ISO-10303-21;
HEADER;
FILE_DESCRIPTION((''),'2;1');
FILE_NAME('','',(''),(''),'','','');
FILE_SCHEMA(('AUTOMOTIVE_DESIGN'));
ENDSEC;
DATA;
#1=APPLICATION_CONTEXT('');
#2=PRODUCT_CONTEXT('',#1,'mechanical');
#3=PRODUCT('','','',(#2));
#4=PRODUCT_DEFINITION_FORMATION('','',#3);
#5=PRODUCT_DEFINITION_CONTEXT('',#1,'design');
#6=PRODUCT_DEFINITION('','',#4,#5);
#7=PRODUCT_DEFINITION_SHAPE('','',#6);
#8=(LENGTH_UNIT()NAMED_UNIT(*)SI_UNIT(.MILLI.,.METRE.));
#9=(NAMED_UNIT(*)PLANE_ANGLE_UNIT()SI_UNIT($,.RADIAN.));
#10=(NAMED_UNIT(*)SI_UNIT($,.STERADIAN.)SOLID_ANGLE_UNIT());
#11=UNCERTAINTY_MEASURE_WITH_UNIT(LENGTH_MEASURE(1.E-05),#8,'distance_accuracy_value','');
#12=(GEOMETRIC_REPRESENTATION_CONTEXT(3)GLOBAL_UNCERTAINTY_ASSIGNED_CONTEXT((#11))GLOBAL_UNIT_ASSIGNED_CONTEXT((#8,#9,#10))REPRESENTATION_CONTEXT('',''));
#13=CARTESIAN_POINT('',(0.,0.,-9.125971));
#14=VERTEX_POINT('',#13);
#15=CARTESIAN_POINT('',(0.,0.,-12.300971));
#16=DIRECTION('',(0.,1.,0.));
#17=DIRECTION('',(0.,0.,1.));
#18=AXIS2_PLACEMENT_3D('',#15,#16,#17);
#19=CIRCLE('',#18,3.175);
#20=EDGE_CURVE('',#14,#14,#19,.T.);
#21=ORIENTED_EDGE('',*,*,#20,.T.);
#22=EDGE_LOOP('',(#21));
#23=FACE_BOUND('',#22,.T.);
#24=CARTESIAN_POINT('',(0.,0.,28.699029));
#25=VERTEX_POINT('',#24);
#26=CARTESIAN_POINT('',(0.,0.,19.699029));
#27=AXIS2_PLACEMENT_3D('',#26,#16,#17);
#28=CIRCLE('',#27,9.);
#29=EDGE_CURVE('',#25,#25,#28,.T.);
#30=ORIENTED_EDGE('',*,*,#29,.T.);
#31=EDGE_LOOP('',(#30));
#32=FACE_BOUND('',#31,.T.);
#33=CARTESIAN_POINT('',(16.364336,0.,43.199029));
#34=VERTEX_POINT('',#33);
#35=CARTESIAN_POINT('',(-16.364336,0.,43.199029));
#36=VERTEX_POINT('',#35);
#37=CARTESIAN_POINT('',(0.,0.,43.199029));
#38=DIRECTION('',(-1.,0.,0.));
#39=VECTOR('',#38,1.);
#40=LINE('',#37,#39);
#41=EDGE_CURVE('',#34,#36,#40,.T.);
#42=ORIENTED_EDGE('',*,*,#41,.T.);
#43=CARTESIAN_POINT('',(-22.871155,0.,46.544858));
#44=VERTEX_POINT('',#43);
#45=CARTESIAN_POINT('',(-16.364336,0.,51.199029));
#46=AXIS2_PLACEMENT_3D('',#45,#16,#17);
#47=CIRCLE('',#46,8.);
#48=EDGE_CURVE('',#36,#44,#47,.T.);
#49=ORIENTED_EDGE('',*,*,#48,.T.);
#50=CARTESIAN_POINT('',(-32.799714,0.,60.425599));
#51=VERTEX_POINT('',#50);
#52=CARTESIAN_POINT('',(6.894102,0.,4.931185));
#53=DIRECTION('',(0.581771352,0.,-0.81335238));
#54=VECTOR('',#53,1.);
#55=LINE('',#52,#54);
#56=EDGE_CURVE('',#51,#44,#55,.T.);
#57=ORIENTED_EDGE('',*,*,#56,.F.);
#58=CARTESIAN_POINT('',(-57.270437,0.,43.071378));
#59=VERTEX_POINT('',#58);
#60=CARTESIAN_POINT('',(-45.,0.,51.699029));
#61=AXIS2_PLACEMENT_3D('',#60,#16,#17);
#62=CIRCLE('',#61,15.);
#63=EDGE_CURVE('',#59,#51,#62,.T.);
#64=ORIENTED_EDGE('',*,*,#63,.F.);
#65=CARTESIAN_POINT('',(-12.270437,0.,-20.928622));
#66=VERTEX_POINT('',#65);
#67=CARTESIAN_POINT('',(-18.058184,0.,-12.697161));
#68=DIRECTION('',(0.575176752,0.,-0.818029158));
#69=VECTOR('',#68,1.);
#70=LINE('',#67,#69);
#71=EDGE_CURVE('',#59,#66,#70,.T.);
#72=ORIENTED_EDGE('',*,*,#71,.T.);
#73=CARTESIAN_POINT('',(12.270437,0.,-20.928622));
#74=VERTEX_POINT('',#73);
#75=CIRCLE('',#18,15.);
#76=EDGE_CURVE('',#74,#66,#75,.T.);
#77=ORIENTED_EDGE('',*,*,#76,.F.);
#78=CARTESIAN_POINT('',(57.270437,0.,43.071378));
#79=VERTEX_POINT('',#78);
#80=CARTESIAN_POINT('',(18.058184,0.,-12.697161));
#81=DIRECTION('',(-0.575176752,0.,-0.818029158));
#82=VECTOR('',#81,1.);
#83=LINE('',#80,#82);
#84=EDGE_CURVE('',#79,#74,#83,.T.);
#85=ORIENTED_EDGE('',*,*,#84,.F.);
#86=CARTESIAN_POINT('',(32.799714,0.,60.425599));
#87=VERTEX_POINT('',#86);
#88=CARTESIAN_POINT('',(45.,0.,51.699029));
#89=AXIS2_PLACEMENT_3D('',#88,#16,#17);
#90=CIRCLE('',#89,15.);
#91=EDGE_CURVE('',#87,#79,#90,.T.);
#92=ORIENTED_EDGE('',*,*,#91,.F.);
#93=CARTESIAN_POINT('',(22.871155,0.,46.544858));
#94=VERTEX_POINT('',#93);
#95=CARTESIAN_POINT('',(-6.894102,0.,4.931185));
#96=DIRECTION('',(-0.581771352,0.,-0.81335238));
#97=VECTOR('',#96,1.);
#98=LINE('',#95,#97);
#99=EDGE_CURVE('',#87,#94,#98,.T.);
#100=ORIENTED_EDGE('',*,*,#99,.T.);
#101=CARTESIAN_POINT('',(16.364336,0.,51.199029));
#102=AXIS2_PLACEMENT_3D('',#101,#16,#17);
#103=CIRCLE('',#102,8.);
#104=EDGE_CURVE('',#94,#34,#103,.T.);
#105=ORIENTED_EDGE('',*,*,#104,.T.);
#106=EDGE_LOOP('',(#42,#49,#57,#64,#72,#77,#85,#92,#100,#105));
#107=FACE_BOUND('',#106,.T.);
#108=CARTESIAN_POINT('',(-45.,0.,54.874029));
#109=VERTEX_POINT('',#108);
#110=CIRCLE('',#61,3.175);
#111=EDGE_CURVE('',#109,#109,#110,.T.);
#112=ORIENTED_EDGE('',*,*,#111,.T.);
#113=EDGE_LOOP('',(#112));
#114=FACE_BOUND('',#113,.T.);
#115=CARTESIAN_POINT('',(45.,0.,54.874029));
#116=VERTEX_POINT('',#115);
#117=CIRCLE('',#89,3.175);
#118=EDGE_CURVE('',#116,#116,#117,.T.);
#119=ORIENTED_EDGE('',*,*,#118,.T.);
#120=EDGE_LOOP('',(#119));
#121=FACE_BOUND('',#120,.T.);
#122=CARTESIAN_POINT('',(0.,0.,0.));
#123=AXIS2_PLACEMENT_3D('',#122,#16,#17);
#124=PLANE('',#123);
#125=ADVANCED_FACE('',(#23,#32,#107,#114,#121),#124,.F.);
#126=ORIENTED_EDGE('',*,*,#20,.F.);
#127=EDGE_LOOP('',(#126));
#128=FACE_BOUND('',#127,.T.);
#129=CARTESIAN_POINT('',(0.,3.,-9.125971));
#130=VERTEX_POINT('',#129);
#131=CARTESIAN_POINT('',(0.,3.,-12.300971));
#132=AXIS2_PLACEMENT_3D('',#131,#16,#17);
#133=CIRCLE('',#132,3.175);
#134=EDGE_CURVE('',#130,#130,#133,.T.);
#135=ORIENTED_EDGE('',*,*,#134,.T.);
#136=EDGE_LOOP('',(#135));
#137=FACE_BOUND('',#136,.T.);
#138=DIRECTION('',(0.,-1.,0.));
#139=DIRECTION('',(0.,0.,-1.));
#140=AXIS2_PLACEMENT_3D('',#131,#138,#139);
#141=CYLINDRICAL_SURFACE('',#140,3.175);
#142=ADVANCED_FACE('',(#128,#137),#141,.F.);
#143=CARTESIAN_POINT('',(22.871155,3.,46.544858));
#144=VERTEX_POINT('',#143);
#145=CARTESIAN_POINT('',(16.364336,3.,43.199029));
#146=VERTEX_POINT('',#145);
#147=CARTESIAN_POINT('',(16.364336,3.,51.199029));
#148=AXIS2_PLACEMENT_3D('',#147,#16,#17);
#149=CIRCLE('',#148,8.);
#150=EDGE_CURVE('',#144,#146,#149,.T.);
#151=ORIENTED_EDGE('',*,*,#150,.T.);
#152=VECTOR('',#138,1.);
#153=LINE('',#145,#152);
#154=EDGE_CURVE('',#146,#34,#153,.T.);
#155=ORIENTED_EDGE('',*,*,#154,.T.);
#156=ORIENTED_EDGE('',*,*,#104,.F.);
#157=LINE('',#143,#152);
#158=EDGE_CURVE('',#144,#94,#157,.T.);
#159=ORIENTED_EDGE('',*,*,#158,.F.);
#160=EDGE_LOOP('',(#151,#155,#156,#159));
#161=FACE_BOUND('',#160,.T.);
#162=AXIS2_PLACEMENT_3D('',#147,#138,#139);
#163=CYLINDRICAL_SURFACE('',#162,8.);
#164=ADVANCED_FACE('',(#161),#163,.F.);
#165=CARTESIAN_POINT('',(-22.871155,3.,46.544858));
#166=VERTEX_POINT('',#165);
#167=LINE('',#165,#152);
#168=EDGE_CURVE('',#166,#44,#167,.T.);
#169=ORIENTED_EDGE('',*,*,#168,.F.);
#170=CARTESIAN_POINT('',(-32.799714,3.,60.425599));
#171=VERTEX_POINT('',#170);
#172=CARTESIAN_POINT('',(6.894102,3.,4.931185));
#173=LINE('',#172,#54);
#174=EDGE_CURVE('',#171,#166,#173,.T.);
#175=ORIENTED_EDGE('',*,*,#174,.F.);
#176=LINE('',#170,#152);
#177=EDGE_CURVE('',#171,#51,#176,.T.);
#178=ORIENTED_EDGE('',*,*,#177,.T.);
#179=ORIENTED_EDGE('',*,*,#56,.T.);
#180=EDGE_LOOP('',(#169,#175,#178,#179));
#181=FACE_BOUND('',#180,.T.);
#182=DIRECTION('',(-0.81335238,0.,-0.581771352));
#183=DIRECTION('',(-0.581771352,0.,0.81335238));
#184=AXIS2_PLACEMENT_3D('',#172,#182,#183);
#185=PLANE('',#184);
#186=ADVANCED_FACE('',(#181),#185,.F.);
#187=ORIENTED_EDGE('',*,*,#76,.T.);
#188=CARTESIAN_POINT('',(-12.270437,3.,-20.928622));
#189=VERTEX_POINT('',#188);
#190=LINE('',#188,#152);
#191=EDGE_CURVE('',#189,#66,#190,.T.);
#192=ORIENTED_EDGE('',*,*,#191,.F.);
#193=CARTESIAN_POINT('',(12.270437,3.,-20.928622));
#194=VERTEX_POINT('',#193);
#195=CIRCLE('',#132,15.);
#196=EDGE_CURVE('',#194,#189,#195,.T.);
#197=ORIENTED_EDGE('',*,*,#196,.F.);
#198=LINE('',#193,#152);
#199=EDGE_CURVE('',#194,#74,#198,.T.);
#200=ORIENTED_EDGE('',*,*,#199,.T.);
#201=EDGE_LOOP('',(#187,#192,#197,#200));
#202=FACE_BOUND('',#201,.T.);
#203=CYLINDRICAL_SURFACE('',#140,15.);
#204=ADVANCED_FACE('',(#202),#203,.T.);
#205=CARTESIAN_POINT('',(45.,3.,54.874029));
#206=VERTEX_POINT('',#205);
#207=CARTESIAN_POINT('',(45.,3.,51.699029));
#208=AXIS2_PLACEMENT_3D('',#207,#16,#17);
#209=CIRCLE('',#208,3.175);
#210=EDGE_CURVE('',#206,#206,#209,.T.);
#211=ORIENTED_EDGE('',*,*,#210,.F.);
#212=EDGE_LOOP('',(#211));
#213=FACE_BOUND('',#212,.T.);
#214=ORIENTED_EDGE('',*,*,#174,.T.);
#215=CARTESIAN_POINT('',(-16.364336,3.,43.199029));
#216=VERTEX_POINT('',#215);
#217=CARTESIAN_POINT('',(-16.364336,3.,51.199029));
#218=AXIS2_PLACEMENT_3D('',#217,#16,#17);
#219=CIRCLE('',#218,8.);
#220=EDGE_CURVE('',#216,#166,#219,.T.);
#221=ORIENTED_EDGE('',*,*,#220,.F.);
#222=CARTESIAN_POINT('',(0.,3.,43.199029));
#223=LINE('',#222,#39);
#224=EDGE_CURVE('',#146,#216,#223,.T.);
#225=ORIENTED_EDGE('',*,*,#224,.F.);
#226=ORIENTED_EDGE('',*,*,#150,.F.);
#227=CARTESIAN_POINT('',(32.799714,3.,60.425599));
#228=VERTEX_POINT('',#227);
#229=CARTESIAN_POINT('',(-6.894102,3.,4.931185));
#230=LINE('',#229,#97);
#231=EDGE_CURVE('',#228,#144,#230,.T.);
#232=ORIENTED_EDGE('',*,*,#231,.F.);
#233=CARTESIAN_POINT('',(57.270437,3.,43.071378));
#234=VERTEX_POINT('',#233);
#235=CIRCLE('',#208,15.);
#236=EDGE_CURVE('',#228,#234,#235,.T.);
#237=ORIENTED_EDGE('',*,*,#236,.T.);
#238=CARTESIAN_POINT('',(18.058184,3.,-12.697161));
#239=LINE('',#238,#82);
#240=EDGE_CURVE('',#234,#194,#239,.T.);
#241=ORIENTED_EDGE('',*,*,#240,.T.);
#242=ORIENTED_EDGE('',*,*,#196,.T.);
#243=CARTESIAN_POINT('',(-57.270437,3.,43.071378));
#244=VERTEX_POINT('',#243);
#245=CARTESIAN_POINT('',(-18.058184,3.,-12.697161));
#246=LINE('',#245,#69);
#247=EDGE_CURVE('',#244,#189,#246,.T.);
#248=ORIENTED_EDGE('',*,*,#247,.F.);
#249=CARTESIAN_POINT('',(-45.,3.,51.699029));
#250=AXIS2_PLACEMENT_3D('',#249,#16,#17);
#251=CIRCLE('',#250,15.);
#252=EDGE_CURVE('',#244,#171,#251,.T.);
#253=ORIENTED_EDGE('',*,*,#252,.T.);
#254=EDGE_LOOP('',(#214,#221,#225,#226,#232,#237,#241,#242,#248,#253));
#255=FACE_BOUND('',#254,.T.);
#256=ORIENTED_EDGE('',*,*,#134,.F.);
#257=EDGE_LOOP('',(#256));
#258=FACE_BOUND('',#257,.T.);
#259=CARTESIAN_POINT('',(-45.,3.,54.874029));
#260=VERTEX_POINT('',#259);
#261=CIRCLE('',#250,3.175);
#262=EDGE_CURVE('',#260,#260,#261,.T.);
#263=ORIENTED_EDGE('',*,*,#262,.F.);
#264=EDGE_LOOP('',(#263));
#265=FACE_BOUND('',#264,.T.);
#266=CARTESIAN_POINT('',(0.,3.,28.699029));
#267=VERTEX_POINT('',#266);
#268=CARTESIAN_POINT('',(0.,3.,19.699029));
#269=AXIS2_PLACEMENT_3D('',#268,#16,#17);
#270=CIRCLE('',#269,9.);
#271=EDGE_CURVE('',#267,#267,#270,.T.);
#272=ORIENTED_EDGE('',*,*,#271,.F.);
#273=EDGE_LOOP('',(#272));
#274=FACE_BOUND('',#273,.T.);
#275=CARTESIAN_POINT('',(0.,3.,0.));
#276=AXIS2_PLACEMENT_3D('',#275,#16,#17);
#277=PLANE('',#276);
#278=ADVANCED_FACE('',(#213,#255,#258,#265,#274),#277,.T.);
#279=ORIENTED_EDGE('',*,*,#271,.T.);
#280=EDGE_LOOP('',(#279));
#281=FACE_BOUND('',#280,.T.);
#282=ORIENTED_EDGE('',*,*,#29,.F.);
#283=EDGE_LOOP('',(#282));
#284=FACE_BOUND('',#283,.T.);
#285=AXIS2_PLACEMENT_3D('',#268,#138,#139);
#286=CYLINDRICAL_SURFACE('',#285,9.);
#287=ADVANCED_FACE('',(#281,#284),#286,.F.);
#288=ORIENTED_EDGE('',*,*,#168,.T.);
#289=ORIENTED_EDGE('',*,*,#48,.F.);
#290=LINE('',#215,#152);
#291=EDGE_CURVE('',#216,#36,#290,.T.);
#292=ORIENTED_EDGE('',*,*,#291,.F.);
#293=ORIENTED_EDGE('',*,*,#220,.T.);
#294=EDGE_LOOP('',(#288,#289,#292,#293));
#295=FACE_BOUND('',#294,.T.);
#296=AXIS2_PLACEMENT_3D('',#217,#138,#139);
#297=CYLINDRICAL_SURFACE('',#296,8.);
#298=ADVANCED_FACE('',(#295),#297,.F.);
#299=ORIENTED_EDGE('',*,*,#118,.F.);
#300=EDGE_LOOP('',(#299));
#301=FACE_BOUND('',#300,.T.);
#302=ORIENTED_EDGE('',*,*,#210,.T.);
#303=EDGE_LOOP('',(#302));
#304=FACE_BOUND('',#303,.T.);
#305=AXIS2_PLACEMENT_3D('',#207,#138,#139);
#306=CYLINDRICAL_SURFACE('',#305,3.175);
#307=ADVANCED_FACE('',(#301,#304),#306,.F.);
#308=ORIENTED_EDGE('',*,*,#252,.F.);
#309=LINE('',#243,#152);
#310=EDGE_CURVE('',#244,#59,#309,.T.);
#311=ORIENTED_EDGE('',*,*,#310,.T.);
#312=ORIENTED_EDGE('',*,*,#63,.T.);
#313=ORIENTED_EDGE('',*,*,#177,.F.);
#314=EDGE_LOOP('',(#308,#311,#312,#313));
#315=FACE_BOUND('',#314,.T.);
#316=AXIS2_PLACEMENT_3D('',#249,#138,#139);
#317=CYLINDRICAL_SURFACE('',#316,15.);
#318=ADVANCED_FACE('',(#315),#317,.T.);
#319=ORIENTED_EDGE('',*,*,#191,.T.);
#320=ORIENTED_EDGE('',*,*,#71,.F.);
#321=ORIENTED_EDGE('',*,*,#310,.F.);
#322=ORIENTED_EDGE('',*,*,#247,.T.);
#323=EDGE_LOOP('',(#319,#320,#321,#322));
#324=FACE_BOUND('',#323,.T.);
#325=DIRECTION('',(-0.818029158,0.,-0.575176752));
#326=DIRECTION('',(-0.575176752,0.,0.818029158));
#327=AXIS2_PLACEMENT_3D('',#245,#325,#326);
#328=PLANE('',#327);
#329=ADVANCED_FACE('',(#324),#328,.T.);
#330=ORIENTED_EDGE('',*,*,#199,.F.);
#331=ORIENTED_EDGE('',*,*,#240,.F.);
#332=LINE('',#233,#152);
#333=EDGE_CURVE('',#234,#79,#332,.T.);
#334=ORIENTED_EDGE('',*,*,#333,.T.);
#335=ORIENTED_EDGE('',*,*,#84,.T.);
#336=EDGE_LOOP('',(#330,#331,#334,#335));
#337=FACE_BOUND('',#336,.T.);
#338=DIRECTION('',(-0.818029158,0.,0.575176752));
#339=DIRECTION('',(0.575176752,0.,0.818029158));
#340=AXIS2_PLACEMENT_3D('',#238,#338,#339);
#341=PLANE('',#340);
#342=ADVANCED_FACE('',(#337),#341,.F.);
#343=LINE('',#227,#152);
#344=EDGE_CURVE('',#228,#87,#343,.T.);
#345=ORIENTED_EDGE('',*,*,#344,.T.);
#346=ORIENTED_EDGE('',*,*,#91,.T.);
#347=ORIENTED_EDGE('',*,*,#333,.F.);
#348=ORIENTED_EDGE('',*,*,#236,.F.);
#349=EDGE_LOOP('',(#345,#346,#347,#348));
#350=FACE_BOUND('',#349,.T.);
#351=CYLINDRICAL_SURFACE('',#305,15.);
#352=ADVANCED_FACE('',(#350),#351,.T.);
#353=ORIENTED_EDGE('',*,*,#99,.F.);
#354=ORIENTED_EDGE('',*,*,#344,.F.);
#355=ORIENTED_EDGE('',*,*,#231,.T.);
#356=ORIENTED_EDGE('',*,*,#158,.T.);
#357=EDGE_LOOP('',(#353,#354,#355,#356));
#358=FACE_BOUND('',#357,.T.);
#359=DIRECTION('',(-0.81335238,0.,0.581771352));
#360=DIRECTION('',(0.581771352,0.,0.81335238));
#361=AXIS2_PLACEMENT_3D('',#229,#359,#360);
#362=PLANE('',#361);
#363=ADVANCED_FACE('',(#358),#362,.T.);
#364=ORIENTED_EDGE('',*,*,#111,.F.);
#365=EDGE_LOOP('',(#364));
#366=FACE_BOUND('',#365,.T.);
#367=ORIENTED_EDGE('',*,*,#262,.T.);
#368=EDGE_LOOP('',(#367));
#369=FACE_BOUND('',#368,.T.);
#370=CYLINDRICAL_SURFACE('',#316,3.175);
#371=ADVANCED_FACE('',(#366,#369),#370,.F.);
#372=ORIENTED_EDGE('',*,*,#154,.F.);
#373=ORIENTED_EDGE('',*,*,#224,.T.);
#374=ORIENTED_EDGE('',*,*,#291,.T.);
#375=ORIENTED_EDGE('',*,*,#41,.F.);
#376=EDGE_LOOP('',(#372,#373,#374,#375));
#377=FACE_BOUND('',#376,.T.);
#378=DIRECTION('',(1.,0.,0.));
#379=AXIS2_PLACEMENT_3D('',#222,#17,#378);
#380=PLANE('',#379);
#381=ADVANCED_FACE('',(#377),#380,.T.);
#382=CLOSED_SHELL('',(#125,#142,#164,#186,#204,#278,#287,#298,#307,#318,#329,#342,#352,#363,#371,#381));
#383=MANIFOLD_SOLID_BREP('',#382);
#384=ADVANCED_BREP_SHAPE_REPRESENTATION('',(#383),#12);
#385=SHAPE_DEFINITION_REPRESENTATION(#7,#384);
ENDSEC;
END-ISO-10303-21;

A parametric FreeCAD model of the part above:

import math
import FreeCAD as App
import Part
import Sketcher
from FreeCAD import Vector

doc = App.newDocument("Part")
body = doc.addObject("PartDesign::Body", "Body")

# Sketch on XZ plane
sketch1 = body.newObject("Sketcher::SketchObject", "Sketch")
sketch1.AttachmentSupport = (doc.getObject("XZ_Plane"), [""])
sketch1.MapMode = "FlatFace"
sketch1.addGeometry(Part.LineSegment(Vector(-12.270437, -20.928622, 0), Vector(-57.270437, 43.071378, 0)), False)
sketch1.addGeometry(Part.ArcOfCircle(Part.Circle(Vector(-45, 51.699029, 0), Vector(0, 0, 1), 15), math.radians(35.575227), math.radians(215.112011)), False)
sketch1.addGeometry(Part.LineSegment(Vector(-32.799714, 60.425599, 0), Vector(-22.871155, 46.544858, 0)), False)
sketch1.addGeometry(Part.ArcOfCircle(Part.Circle(Vector(-16.364336, 51.199029, 0), Vector(0, 0, 1), 8), math.radians(-144.424773), math.radians(-90)), False)
sketch1.addGeometry(Part.LineSegment(Vector(-16.364336, 43.199029, 0), Vector(16.364336, 43.199029, 0)), False)
sketch1.addGeometry(Part.ArcOfCircle(Part.Circle(Vector(16.364336, 51.199029, 0), Vector(0, 0, 1), 8), math.radians(-90), math.radians(-35.575227)), False)
sketch1.addGeometry(Part.LineSegment(Vector(22.871155, 46.544858, 0), Vector(32.799714, 60.425599, 0)), False)
sketch1.addGeometry(Part.ArcOfCircle(Part.Circle(Vector(45, 51.699029, 0), Vector(0, 0, 1), 15), math.radians(-35.112011), math.radians(144.424773)), False)
sketch1.addGeometry(Part.LineSegment(Vector(57.270437, 43.071378, 0), Vector(12.270437, -20.928622, 0)), False)
sketch1.addGeometry(Part.ArcOfCircle(Part.Circle(Vector(0, -12.300971, 0), Vector(0, 0, 1), 15), math.radians(-144.887989), math.radians(-35.112011)), False)
sketch1.addGeometry(Part.Circle(Vector(-45, 51.699029, 0), Vector(0, 0, 1), 3.175), False)
sketch1.addGeometry(Part.Circle(Vector(45, 51.699029, 0), Vector(0, 0, 1), 3.175), False)
sketch1.addGeometry(Part.Circle(Vector(0, 19.699029, 0), Vector(0, 0, 1), 9), False)
sketch1.addGeometry(Part.Circle(Vector(0, -12.300971, 0), Vector(0, 0, 1), 3.175), False)
sketch1.addConstraint(Sketcher.Constraint("Tangent", 0, 2, 1, 2))
sketch1.addConstraint(Sketcher.Constraint("Tangent", 1, 1, 2, 1))
sketch1.addConstraint(Sketcher.Constraint("Tangent", 2, 2, 3, 1))
sketch1.addConstraint(Sketcher.Constraint("Tangent", 3, 2, 4, 1))
sketch1.addConstraint(Sketcher.Constraint("Tangent", 4, 2, 5, 1))
sketch1.addConstraint(Sketcher.Constraint("Tangent", 5, 2, 6, 1))
sketch1.addConstraint(Sketcher.Constraint("Tangent", 6, 2, 7, 2))
sketch1.addConstraint(Sketcher.Constraint("Tangent", 7, 1, 8, 1))
sketch1.addConstraint(Sketcher.Constraint("Tangent", 8, 2, 9, 2))
sketch1.addConstraint(Sketcher.Constraint("Tangent", 9, 1, 0, 1))
sketch1.addConstraint(Sketcher.Constraint("Horizontal", 4))
sketch1.addConstraint(Sketcher.Constraint("Coincident", 10, 3, 1, 3))
sketch1.addConstraint(Sketcher.Constraint("Coincident", 11, 3, 7, 3))
sketch1.addConstraint(Sketcher.Constraint("Coincident", 13, 3, 9, 3))
sketch1.addConstraint(Sketcher.Constraint("Equal", 3, 5))
sketch1.addConstraint(Sketcher.Constraint("Equal", 1, 7))
sketch1.addConstraint(Sketcher.Constraint("Equal", 7, 9))
sketch1.addConstraint(Sketcher.Constraint("Equal", 10, 11))
sketch1.addConstraint(Sketcher.Constraint("Equal", 11, 13))
sketch1.addConstraint(Sketcher.Constraint("Symmetric", 1, 3, 7, 3, -2))
sketch1.addConstraint(Sketcher.Constraint("PointOnObject", 9, 3, -2))
sketch1.addConstraint(Sketcher.Constraint("PointOnObject", 12, 3, -2))
sketch1.addConstraint(Sketcher.Constraint("Horizontal", 2, 2, 5, 2))
sketch1.addConstraint(Sketcher.Constraint("Diameter", 12, 18.0))
sketch1.addConstraint(Sketcher.Constraint("Radius", 1, 15.0))
sketch1.addConstraint(Sketcher.Constraint("Radius", 3, 8.0))
sketch1.addConstraint(Sketcher.Constraint("Diameter", 10, 6.35))
sketch1.addConstraint(Sketcher.Constraint("DistanceX", 1, 3, -1, 1, 45.0))
sketch1.addConstraint(Sketcher.Constraint("DistanceY", 9, 3, 1, 3, 64.0))
sketch1.addConstraint(Sketcher.Constraint("DistanceY", 9, 3, 12, 3, 32.0))
sketch1.addConstraint(Sketcher.Constraint("DistanceY", 3, 3, 1, 3, 0.5))
sketch1.addConstraint(Sketcher.Constraint("DistanceX", 4, 1, 4, 2, 32.728671))
sketch1.addConstraint(Sketcher.Constraint("DistanceY", -1, 1, 1, 1, 60.425599))
pad1 = body.newObject("PartDesign::Pad", "Pad")
pad1.Profile = sketch1
pad1.Length = 3
pad1.Reversed = True

doc.recompute()
